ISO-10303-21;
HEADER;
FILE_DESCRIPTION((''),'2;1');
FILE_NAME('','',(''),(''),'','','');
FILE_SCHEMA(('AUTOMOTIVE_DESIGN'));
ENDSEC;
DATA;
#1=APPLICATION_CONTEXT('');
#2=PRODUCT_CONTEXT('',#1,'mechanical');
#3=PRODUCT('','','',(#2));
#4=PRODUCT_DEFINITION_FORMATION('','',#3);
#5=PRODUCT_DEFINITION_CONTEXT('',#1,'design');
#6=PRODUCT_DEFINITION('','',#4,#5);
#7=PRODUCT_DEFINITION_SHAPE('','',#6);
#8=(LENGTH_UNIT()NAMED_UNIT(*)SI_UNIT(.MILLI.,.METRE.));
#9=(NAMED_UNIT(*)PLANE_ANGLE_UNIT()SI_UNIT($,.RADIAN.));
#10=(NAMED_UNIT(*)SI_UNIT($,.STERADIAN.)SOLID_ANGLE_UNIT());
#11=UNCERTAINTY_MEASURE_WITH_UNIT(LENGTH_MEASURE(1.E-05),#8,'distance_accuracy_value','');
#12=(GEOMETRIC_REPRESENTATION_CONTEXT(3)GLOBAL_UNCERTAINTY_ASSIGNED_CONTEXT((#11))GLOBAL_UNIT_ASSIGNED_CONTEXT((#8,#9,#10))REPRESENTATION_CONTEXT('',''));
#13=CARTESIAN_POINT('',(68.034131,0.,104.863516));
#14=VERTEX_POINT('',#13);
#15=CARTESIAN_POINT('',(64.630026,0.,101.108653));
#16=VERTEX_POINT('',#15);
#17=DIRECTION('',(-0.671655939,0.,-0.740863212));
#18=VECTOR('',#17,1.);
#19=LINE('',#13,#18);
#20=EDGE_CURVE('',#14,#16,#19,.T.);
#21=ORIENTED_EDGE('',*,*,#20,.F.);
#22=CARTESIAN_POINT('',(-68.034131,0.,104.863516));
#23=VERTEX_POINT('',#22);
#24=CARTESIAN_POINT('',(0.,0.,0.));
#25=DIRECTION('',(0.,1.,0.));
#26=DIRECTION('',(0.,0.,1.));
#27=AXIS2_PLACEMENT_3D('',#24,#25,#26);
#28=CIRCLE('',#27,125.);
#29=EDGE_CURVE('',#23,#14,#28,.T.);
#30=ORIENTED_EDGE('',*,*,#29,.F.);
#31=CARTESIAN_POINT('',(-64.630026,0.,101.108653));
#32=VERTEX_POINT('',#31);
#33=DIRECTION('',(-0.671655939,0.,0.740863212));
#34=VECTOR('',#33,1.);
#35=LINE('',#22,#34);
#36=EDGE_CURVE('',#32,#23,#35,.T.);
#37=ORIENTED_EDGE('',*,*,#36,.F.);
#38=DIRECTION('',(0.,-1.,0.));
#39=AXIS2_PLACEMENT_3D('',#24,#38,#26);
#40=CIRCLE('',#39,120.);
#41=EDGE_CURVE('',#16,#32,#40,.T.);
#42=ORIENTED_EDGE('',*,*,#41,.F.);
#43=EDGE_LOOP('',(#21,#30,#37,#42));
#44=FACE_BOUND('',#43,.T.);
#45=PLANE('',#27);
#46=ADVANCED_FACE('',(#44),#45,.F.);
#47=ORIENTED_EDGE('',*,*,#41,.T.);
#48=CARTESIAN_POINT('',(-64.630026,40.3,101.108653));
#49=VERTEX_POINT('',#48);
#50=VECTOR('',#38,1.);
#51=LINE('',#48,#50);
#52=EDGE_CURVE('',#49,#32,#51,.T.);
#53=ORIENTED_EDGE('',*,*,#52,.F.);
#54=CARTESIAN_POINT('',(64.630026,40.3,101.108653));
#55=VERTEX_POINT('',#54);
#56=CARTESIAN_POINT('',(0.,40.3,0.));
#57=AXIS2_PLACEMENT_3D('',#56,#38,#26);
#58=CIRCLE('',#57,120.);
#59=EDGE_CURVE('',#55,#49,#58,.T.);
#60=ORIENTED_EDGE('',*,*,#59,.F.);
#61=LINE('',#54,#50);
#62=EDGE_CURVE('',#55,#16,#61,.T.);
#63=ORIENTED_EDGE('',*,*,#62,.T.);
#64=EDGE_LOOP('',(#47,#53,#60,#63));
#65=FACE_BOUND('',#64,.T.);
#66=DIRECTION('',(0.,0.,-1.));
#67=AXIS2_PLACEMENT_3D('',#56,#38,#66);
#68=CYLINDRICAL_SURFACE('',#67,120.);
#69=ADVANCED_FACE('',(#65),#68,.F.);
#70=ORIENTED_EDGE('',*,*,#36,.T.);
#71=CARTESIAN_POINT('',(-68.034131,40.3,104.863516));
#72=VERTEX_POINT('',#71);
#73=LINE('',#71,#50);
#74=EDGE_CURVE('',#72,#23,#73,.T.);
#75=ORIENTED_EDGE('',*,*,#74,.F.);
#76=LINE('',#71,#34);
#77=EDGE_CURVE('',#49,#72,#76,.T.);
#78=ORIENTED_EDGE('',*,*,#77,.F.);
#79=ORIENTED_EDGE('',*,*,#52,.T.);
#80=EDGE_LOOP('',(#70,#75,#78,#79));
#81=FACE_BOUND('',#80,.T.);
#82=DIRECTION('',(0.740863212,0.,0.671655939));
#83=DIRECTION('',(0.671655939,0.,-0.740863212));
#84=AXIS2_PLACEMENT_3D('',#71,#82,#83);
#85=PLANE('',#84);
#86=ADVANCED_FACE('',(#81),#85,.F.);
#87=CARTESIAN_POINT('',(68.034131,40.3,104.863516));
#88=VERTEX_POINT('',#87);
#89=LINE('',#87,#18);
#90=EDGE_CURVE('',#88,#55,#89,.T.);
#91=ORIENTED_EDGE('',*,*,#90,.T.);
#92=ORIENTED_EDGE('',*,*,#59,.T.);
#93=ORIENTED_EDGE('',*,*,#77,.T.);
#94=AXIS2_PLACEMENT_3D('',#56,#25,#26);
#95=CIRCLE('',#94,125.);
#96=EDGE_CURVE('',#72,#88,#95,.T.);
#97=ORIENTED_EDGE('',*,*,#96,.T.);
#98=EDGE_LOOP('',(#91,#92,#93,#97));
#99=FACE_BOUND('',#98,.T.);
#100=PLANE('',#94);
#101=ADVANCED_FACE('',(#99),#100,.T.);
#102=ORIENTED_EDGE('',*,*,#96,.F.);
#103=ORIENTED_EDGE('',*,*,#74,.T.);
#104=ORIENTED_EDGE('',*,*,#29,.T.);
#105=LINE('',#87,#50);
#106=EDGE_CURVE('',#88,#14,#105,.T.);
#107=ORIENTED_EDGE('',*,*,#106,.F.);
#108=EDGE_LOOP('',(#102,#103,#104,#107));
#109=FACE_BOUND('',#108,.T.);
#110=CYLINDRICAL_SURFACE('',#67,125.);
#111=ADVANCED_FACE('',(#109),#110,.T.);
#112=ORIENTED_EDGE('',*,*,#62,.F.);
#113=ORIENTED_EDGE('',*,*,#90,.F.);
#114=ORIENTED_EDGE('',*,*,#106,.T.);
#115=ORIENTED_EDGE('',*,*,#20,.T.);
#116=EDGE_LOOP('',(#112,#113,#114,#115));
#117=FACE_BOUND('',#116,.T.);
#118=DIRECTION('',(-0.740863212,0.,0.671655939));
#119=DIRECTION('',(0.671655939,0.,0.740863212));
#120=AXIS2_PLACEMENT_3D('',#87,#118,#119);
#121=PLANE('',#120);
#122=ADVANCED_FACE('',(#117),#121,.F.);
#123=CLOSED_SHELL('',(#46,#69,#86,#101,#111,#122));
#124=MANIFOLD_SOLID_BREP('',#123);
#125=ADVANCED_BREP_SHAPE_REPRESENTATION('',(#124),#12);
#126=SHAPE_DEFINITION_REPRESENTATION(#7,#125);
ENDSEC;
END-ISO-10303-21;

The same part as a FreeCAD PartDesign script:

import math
import FreeCAD as App
import Part
import Sketcher

V = App.Vector
Q = App.Units.Quantity

doc = App.newDocument("Part")
body = doc.addObject("PartDesign::Body", "Body")

# Sketch on XZ plane
sketch1 = body.newObject("Sketcher::SketchObject", "Sketch")
sketch1.AttachmentSupport = (doc.getObject("XZ_Plane"), [""])
sketch1.MapMode = "FlatFace"
sketch1.addGeometry([
    Part.LineSegment(V(-64.630026, 101.108653, 0), V(-68.034131, 104.863516, 0)),
    Part.ArcOfCircle(Part.Circle(V(0, 0, 0), V(0, 0, 1), 125), math.radians(57.025), math.radians(122.975)),
    Part.LineSegment(V(68.034131, 104.863516, 0), V(64.630026, 101.108653, 0)),
    Part.ArcOfCircle(Part.Circle(V(0, 0, 0), V(0, 0, 1), 120), math.radians(57.412733), math.radians(122.587267)),
], False)
sketch1.addConstraint([
    Sketcher.Constraint("Coincident", 0, 2, 1, 2),
    Sketcher.Constraint("Coincident", 1, 1, 2, 1),
    Sketcher.Constraint("Coincident", 2, 2, 3, 1),
    Sketcher.Constraint("Coincident", 3, 2, 0, 1),
    Sketcher.Constraint("Coincident", 1, 3, -1, 1),
    Sketcher.Constraint("Coincident", 3, 3, -1, 1),
    Sketcher.Constraint("Horizontal", 0, 2, 1, 1),
    Sketcher.Constraint("Horizontal", 2, 2, 3, 2),
    Sketcher.Constraint("Radius", 1, Q("125 mm")),
    Sketcher.Constraint("Radius", 3, Q("120 mm")),
    Sketcher.Constraint("DistanceX", 0, 2, -1, 1, Q("68.034131 mm")),
    Sketcher.Constraint("DistanceX", 3, 2, 2, 2, Q("129.260051 mm")),
])
pad1 = body.newObject("PartDesign::Pad", "Pad")
pad1.Profile = sketch1
pad1.Length = 40.3
pad1.Reversed = True

doc.recompute()
